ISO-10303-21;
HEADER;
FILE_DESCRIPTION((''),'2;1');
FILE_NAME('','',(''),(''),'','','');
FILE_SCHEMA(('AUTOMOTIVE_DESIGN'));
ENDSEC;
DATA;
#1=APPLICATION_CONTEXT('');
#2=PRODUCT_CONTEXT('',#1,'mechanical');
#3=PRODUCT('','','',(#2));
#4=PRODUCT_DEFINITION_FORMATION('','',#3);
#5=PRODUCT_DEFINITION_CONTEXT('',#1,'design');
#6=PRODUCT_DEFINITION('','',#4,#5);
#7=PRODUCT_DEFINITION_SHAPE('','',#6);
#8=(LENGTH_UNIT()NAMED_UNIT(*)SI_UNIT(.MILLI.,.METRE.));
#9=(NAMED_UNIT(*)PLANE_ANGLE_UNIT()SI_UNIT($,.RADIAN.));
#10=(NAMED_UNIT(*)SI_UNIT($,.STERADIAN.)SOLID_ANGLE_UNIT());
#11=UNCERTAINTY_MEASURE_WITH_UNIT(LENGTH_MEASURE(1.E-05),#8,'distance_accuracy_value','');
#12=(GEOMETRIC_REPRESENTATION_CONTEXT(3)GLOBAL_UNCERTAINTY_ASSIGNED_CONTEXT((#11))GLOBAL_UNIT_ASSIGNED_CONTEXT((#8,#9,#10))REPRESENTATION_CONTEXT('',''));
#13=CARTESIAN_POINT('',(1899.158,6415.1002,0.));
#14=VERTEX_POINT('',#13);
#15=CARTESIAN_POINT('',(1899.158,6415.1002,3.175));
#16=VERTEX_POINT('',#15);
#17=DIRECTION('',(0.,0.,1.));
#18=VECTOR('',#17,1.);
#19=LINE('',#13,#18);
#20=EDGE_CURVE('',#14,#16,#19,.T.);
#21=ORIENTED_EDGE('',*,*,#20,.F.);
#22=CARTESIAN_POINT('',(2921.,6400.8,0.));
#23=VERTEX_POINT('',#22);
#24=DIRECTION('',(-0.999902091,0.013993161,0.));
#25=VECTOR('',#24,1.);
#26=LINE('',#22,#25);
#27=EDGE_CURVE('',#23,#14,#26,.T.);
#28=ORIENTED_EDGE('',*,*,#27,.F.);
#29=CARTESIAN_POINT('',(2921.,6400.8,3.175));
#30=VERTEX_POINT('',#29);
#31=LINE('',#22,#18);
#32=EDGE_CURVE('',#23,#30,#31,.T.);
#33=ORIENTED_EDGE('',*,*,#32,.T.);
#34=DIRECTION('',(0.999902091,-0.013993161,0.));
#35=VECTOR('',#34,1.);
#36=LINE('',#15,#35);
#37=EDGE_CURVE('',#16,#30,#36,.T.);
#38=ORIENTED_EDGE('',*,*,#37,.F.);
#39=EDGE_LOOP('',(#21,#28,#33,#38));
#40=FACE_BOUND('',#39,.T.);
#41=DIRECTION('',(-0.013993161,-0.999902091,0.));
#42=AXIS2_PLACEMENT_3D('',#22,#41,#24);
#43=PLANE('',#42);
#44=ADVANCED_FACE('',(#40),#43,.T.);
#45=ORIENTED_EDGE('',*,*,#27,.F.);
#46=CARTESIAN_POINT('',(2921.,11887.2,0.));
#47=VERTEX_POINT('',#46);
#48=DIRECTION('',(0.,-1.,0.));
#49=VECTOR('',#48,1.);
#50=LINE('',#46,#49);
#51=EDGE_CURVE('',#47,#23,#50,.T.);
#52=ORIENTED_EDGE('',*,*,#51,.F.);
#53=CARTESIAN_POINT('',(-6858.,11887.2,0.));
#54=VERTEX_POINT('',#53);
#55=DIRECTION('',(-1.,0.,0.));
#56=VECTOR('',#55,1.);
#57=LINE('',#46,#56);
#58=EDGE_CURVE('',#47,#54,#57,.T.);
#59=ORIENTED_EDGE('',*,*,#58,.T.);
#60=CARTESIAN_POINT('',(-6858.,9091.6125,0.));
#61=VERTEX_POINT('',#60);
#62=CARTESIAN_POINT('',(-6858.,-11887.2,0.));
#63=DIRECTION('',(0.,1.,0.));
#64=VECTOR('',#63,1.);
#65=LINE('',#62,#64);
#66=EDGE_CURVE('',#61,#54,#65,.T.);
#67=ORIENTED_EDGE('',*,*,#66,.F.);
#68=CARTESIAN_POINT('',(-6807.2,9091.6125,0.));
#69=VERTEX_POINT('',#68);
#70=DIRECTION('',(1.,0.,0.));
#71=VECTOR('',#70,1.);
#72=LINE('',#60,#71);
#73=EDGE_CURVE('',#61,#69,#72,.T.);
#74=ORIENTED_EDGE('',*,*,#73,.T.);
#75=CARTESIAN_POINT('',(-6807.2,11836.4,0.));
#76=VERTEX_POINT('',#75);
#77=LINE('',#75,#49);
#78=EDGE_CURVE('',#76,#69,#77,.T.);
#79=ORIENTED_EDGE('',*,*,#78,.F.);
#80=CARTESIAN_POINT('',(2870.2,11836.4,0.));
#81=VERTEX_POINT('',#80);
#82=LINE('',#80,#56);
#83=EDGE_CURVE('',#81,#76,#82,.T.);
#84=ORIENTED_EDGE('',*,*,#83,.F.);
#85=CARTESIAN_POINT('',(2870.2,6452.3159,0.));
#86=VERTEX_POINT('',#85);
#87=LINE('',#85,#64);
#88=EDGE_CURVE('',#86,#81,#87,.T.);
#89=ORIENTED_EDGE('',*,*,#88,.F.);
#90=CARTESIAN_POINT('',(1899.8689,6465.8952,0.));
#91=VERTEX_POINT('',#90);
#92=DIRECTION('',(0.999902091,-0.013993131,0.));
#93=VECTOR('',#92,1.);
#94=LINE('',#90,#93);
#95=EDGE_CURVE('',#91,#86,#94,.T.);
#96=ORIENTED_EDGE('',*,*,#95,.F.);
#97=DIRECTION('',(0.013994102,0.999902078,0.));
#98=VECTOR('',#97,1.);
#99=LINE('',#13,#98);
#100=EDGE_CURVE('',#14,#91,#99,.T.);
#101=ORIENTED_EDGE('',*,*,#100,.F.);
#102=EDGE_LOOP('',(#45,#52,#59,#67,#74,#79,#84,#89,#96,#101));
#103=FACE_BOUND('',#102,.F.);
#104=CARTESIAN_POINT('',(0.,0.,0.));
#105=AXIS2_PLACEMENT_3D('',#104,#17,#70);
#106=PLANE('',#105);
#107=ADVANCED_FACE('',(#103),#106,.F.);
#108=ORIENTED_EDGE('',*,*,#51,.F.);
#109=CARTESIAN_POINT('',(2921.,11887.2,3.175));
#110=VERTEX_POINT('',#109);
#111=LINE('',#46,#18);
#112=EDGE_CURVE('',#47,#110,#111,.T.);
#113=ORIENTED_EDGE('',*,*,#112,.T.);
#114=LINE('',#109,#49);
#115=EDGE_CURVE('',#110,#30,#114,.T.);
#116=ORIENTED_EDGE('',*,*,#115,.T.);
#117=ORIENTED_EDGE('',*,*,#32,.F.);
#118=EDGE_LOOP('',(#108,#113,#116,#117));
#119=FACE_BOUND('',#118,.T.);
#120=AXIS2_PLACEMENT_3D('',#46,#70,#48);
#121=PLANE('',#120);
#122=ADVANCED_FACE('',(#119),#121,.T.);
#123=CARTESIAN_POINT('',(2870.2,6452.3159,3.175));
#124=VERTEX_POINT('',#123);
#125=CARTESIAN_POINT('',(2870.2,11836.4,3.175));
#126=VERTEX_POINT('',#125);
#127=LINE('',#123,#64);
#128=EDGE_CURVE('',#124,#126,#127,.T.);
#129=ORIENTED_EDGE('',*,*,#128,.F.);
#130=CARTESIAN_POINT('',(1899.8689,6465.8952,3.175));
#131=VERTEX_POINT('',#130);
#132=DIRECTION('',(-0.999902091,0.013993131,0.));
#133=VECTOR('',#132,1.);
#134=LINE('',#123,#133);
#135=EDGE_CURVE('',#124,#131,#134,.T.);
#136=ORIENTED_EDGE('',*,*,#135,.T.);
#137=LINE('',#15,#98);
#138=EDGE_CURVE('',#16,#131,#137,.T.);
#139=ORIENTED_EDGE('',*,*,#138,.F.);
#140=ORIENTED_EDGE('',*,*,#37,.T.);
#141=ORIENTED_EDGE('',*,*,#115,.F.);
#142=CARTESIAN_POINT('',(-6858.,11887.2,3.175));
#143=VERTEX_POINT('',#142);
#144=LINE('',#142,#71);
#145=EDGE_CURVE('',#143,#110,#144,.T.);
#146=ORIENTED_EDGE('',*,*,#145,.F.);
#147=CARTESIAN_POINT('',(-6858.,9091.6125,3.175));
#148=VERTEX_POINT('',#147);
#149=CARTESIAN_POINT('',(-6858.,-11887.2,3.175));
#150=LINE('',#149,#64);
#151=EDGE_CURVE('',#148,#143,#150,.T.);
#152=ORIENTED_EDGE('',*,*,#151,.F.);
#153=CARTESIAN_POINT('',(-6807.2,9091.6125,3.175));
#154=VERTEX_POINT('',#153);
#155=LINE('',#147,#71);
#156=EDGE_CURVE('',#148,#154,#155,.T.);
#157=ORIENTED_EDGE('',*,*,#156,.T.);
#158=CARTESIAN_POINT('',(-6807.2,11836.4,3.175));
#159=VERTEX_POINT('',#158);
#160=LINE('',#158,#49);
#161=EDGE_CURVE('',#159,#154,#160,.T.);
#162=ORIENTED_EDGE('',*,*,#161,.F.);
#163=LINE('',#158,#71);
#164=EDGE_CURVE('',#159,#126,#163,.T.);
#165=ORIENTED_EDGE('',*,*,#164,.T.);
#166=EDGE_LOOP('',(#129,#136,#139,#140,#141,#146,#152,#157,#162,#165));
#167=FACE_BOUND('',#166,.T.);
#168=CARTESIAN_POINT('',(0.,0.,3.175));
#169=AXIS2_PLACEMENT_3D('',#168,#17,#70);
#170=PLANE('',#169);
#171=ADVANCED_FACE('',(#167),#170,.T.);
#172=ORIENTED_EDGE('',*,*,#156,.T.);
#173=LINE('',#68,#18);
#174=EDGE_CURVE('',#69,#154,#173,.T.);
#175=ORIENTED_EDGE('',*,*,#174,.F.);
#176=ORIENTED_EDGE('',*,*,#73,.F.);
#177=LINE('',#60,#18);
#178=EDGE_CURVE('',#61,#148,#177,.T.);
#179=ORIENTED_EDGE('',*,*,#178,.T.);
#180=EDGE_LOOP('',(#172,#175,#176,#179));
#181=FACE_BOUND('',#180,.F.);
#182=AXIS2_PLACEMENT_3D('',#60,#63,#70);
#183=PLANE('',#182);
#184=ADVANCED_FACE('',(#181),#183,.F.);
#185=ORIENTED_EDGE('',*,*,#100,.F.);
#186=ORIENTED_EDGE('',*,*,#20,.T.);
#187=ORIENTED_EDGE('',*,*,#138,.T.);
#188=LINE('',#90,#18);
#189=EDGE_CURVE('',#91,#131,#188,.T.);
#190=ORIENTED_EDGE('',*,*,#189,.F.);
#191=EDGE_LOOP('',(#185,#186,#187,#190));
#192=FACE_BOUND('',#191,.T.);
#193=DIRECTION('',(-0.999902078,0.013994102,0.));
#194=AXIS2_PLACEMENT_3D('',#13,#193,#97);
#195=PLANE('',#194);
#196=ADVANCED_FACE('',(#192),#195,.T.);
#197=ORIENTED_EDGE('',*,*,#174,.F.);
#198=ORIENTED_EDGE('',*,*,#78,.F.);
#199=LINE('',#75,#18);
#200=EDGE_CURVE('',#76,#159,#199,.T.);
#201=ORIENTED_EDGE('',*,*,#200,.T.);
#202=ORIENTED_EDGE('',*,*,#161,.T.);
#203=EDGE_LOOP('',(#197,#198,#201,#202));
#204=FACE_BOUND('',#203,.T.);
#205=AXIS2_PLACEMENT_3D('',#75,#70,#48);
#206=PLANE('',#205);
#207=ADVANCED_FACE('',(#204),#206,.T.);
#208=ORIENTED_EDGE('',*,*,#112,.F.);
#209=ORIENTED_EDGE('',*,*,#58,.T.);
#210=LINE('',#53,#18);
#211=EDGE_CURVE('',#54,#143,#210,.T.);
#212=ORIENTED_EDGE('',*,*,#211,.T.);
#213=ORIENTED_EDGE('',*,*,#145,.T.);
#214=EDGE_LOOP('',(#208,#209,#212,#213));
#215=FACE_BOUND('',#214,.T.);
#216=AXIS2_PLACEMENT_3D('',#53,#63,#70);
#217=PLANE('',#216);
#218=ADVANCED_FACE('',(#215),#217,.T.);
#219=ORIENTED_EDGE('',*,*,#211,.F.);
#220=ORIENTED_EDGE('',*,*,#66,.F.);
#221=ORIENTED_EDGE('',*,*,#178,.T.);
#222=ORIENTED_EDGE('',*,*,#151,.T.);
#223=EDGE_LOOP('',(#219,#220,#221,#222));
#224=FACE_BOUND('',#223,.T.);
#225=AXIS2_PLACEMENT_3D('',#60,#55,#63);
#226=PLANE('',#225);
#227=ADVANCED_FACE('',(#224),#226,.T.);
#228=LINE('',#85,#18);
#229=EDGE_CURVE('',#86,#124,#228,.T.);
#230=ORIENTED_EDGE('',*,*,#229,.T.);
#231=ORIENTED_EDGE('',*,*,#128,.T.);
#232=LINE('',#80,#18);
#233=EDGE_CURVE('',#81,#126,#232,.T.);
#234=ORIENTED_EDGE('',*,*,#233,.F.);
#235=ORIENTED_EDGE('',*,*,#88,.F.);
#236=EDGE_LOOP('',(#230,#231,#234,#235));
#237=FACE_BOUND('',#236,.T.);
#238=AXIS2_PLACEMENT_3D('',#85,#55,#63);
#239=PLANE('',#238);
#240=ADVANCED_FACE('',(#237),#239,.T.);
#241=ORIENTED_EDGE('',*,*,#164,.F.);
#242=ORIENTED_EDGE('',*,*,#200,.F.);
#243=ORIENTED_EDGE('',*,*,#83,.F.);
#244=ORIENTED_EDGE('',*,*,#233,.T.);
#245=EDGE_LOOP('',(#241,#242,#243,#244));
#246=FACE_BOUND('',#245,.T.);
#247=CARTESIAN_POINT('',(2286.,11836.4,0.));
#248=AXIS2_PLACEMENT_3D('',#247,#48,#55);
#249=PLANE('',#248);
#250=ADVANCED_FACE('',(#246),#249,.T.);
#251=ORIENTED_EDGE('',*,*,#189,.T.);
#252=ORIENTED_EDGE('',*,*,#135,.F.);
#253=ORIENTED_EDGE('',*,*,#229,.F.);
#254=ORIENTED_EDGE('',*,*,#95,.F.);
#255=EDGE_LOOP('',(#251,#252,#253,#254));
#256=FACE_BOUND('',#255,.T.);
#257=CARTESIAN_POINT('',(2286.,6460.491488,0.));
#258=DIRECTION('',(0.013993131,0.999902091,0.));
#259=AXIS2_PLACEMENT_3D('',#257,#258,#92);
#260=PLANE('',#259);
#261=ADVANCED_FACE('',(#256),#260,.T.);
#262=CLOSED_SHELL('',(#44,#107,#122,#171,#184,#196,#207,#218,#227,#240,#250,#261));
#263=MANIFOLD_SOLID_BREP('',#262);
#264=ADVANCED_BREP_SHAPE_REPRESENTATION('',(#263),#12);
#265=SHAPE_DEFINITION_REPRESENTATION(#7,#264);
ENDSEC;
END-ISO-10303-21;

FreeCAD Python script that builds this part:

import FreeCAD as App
import Part
import Sketcher
Q = App.Units.Quantity


def add_polygon(sketch, points):
    """Adds a closed chain of lines whose ends are joined by coincident constraints."""
    first, n = sketch.GeometryCount, len(points)
    for a, b in zip(points, points[1:] + points[:1]):
        sketch.addGeometry(Part.LineSegment(App.Vector(*a, 0), App.Vector(*b, 0)), False)
    for i in range(n):
        sketch.addConstraint(Sketcher.Constraint("Coincident", first + i, 2, first + (i + 1) % n, 1))

doc = App.newDocument("Part")
body = doc.addObject("PartDesign::Body", "Body")

# Sketch on XY plane
sketch1 = doc.addObject("Sketcher::SketchObject", "Sketch")
body.addObject(sketch1)
sketch1.AttachmentSupport = (doc.XY_Plane, [""])
sketch1.MapMode = "FlatFace"
add_polygon(sketch1, [(-6858, 11887.2), (-6858, 9091.6125), (-6807.2, 9091.6125), (-6807.2, 11836.4), (2870.2, 11836.4), (2870.2, 6452.3159), (1899.8689, 6465.8952), (1899.158, 6415.1002), (2921, 6400.8), (2921, 11887.2)])  # lines 0-9
sketch1.addConstraint([
    Sketcher.Constraint("Vertical", 0),
    Sketcher.Constraint("Horizontal", 1),
    Sketcher.Constraint("Vertical", 2),
    Sketcher.Constraint("Horizontal", 3),
    Sketcher.Constraint("Vertical", 4),
    Sketcher.Constraint("Vertical", 8),
    Sketcher.Constraint("Horizontal", 9),
    Sketcher.Constraint("DistanceX", 1, 1, 1, 2, Q("2 in")),
    Sketcher.Constraint("DistanceX", 9, 2, 9, 1, Q("385 in")),
    Sketcher.Constraint("DistanceY", 8, 1, 8, 2, Q("216 in")),
    Sketcher.Constraint("Distance", 6, Q("2 in")),
    Sketcher.Constraint("DistanceX", 4, 2, 7, 2, Q("2 in")),
    Sketcher.Constraint("DistanceY", 3, 2, 8, 2, Q("2 in")),
    Sketcher.Constraint("DistanceX", 0, 2, -1, 1, Q("270 in")),
    Sketcher.Constraint("DistanceY", -1, 1, 2, 2, Q("466 in")),
    Sketcher.Constraint("DistanceY", 0, 2, 0, 1, Q("110.0625 in")),
    Sketcher.Constraint("DistanceX", -1, 1, 6, 2, Q("74.77 in")),
    Sketcher.Constraint("DistanceX", -1, 1, 5, 2, Q("74.798 in")),
    Sketcher.Constraint("DistanceY", -1, 1, 6, 2, Q("252.563 in")),
    Sketcher.Constraint("DistanceY", 4, 2, 4, 1, Q("211.971811 in")),
])
pad1 = doc.addObject("PartDesign::Pad", "Pad")
body.addObject(pad1)
pad1.Profile = sketch1
pad1.Length = Q("0.125 in")

doc.recompute()
